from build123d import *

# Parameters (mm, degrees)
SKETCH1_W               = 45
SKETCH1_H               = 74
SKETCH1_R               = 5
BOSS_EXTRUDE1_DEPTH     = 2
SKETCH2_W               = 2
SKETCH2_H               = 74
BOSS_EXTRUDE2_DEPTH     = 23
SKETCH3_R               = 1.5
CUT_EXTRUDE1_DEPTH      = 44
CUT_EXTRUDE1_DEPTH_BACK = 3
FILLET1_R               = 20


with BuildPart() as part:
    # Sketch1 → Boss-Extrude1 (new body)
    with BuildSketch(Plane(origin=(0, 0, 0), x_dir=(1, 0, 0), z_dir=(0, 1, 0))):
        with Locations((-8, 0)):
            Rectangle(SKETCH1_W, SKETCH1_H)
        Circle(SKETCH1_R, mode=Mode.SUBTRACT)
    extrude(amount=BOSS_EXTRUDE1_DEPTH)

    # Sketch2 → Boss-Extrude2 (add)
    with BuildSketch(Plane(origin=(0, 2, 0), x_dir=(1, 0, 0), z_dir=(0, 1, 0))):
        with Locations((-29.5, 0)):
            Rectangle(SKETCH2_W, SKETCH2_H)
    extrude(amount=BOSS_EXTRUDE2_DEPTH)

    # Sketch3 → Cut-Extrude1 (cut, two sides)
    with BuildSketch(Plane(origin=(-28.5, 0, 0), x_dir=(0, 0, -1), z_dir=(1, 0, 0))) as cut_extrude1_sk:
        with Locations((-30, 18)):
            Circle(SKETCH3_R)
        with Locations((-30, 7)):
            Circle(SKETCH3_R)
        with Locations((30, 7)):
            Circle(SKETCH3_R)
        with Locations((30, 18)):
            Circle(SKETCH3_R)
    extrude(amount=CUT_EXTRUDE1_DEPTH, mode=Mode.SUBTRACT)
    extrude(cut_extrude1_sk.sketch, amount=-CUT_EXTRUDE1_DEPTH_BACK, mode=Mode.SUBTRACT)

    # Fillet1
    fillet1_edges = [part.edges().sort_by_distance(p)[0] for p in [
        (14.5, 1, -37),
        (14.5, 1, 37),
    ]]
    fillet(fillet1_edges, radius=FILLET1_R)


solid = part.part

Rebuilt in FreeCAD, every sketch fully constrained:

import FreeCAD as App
import Part
import Sketcher
from FreeCAD import Vector
Q = App.Units.Quantity


def edges_at(feature, points):
    """Names of the edges that pass closest to the given points."""
    edges = feature.Shape.Edges
    near = lambda p: min(range(len(edges)), key=lambda i: edges[i].distToShape(Part.Vertex(*p))[0])
    return sorted({f"Edge{near(p) + 1}" for p in points})

doc = App.newDocument("Part")
body = doc.addObject("PartDesign::Body", "Body")

sketch1 = body.newObject("Sketcher::SketchObject", "Sketch")
sketch1.AttachmentSupport = (doc.getObject("XZ_Plane"), [""])
sketch1.MapMode = "FlatFace"
sketch1.addGeometry(Part.LineSegment(Vector(-30, -37, 0), Vector(-30, 37, 0)), False)
sketch1.addGeometry(Part.LineSegment(Vector(-30, 37, 0), Vector(14, 37, 0)), False)
sketch1.addGeometry(Part.LineSegment(Vector(14, 37, 0), Vector(14, -37, 0)), False)
sketch1.addGeometry(Part.LineSegment(Vector(14, -37, 0), Vector(-30, -37, 0)), False)
sketch1.addGeometry(Part.Circle(Vector(0, 0, 0), Vector(0, 0, 1), 5), False)
sketch1.addConstraint(Sketcher.Constraint("Coincident", 0, 2, 1, 1))
sketch1.addConstraint(Sketcher.Constraint("Coincident", 1, 2, 2, 1))
sketch1.addConstraint(Sketcher.Constraint("Coincident", 2, 2, 3, 1))
sketch1.addConstraint(Sketcher.Constraint("Coincident", 3, 2, 0, 1))
sketch1.addConstraint(Sketcher.Constraint("Vertical", 0))
sketch1.addConstraint(Sketcher.Constraint("Horizontal", 1))
sketch1.addConstraint(Sketcher.Constraint("Vertical", 2))
sketch1.addConstraint(Sketcher.Constraint("Horizontal", 3))
sketch1.addConstraint(Sketcher.Constraint("Coincident", 4, 3, -1, 1))
sketch1.addConstraint(Sketcher.Constraint("Diameter", 4, Q("10 mm")))
sketch1.addConstraint(Sketcher.Constraint("DistanceX", 1, 1, 1, 2, Q("45 mm")))
sketch1.addConstraint(Sketcher.Constraint("DistanceY", 0, 1, 0, 2, Q("74 mm")))
sketch1.addConstraint(Sketcher.Constraint("DistanceY", -1, 1, 0, 2, Q("37 mm")))
sketch1.addConstraint(Sketcher.Constraint("DistanceX", 0, 2, -1, 1, Q("30.5 mm")))
pad1 = body.newObject("PartDesign::Pad", "Pad")
pad1.Profile = sketch1
pad1.Length = 2
pad1.Reversed = True

sketch2 = body.newObject("Sketcher::SketchObject", "Sketch001")
sketch2.AttachmentSupport = (doc.getObject("XZ_Plane"), [""])
sketch2.MapMode = "FlatFace"
sketch2.AttachmentOffset = App.Placement(Vector(0, 0, -2), App.Rotation())
sketch2.addGeometry(Part.LineSegment(Vector(-30.5, -37, 0), Vector(-30.5, 37, 0)), False)
sketch2.addGeometry(Part.LineSegment(Vector(-30.5, 37, 0), Vector(-28.5, 37, 0)), False)
sketch2.addGeometry(Part.LineSegment(Vector(-28.5, 37, 0), Vector(-28.5, -37, 0)), False)
sketch2.addGeometry(Part.LineSegment(Vector(-28.5, -37, 0), Vector(-30.5, -37, 0)), False)
sketch2.addConstraint(Sketcher.Constraint("Coincident", 0, 2, 1, 1))
sketch2.addConstraint(Sketcher.Constraint("Coincident", 1, 2, 2, 1))
sketch2.addConstraint(Sketcher.Constraint("Coincident", 2, 2, 3, 1))
sketch2.addConstraint(Sketcher.Constraint("Coincident", 3, 2, 0, 1))
sketch2.addConstraint(Sketcher.Constraint("Vertical", 0))
sketch2.addConstraint(Sketcher.Constraint("Horizontal", 1))
sketch2.addConstraint(Sketcher.Constraint("Vertical", 2))
sketch2.addConstraint(Sketcher.Constraint("Horizontal", 3))
sketch2.addConstraint(Sketcher.Constraint("DistanceX", 1, 1, 1, 2, Q("2 mm")))
sketch2.addConstraint(Sketcher.Constraint("DistanceY", 0, 1, 0, 2, Q("74 mm")))
sketch2.addConstraint(Sketcher.Constraint("DistanceY", -1, 1, 0, 2, Q("37 mm")))
sketch2.addConstraint(Sketcher.Constraint("DistanceX", 0, 2, -1, 1, Q("30.5 mm")))
pad2 = body.newObject("PartDesign::Pad", "Pad001")
pad2.Profile = sketch2
pad2.Length = 23
pad2.Reversed = True

sketch3 = body.newObject("Sketcher::SketchObject", "Sketch002")
sketch3.AttachmentSupport = (doc.getObject("YZ_Plane"), [""])
sketch3.MapMode = "FlatFace"
sketch3.AttachmentOffset = App.Placement(Vector(0, 0, -28.5), App.Rotation())
sketch3.addGeometry(Part.Circle(Vector(18, 30, 0), Vector(0, 0, 1), 1.5), False)
sketch3.addGeometry(Part.Circle(Vector(7, 30, 0), Vector(0, 0, 1), 1.5), False)
sketch3.addGeometry(Part.Circle(Vector(7, -30, 0), Vector(0, 0, 1), 1.5), False)
sketch3.addGeometry(Part.Circle(Vector(18, -30, 0), Vector(0, 0, 1), 1.5), False)
sketch3.addConstraint(Sketcher.Constraint("Equal", 0, 1))
sketch3.addConstraint(Sketcher.Constraint("Equal", 1, 2))
sketch3.addConstraint(Sketcher.Constraint("Equal", 2, 3))
sketch3.addConstraint(Sketcher.Constraint("Symmetric", 1, 3, 2, 3, -1))
sketch3.addConstraint(Sketcher.Constraint("Symmetric", 0, 3, 3, 3, -1))
sketch3.addConstraint(Sketcher.Constraint("Horizontal", 0, 3, 1, 3))
sketch3.addConstraint(Sketcher.Constraint("Diameter", 0, Q("3 mm")))
sketch3.addConstraint(Sketcher.Constraint("DistanceX", -1, 1, 0, 3, Q("18 mm")))
sketch3.addConstraint(Sketcher.Constraint("DistanceY", -1, 1, 0, 3, Q("30 mm")))
sketch3.addConstraint(Sketcher.Constraint("DistanceX", -1, 1, 1, 3, Q("7 mm")))
pocket1 = body.newObject("PartDesign::Pocket", "Pocket")
pocket1.Profile = sketch3
pocket1.Type = "ThroughAll"
pocket1.Midplane = True
doc.recompute()

fillet = body.newObject("PartDesign::Fillet", "Fillet")
fillet.Base = (pocket1, edges_at(pocket1, [(14.5, 1, -37), (14.5, 1, 37)]))
fillet.Radius = 20

doc.recompute()
